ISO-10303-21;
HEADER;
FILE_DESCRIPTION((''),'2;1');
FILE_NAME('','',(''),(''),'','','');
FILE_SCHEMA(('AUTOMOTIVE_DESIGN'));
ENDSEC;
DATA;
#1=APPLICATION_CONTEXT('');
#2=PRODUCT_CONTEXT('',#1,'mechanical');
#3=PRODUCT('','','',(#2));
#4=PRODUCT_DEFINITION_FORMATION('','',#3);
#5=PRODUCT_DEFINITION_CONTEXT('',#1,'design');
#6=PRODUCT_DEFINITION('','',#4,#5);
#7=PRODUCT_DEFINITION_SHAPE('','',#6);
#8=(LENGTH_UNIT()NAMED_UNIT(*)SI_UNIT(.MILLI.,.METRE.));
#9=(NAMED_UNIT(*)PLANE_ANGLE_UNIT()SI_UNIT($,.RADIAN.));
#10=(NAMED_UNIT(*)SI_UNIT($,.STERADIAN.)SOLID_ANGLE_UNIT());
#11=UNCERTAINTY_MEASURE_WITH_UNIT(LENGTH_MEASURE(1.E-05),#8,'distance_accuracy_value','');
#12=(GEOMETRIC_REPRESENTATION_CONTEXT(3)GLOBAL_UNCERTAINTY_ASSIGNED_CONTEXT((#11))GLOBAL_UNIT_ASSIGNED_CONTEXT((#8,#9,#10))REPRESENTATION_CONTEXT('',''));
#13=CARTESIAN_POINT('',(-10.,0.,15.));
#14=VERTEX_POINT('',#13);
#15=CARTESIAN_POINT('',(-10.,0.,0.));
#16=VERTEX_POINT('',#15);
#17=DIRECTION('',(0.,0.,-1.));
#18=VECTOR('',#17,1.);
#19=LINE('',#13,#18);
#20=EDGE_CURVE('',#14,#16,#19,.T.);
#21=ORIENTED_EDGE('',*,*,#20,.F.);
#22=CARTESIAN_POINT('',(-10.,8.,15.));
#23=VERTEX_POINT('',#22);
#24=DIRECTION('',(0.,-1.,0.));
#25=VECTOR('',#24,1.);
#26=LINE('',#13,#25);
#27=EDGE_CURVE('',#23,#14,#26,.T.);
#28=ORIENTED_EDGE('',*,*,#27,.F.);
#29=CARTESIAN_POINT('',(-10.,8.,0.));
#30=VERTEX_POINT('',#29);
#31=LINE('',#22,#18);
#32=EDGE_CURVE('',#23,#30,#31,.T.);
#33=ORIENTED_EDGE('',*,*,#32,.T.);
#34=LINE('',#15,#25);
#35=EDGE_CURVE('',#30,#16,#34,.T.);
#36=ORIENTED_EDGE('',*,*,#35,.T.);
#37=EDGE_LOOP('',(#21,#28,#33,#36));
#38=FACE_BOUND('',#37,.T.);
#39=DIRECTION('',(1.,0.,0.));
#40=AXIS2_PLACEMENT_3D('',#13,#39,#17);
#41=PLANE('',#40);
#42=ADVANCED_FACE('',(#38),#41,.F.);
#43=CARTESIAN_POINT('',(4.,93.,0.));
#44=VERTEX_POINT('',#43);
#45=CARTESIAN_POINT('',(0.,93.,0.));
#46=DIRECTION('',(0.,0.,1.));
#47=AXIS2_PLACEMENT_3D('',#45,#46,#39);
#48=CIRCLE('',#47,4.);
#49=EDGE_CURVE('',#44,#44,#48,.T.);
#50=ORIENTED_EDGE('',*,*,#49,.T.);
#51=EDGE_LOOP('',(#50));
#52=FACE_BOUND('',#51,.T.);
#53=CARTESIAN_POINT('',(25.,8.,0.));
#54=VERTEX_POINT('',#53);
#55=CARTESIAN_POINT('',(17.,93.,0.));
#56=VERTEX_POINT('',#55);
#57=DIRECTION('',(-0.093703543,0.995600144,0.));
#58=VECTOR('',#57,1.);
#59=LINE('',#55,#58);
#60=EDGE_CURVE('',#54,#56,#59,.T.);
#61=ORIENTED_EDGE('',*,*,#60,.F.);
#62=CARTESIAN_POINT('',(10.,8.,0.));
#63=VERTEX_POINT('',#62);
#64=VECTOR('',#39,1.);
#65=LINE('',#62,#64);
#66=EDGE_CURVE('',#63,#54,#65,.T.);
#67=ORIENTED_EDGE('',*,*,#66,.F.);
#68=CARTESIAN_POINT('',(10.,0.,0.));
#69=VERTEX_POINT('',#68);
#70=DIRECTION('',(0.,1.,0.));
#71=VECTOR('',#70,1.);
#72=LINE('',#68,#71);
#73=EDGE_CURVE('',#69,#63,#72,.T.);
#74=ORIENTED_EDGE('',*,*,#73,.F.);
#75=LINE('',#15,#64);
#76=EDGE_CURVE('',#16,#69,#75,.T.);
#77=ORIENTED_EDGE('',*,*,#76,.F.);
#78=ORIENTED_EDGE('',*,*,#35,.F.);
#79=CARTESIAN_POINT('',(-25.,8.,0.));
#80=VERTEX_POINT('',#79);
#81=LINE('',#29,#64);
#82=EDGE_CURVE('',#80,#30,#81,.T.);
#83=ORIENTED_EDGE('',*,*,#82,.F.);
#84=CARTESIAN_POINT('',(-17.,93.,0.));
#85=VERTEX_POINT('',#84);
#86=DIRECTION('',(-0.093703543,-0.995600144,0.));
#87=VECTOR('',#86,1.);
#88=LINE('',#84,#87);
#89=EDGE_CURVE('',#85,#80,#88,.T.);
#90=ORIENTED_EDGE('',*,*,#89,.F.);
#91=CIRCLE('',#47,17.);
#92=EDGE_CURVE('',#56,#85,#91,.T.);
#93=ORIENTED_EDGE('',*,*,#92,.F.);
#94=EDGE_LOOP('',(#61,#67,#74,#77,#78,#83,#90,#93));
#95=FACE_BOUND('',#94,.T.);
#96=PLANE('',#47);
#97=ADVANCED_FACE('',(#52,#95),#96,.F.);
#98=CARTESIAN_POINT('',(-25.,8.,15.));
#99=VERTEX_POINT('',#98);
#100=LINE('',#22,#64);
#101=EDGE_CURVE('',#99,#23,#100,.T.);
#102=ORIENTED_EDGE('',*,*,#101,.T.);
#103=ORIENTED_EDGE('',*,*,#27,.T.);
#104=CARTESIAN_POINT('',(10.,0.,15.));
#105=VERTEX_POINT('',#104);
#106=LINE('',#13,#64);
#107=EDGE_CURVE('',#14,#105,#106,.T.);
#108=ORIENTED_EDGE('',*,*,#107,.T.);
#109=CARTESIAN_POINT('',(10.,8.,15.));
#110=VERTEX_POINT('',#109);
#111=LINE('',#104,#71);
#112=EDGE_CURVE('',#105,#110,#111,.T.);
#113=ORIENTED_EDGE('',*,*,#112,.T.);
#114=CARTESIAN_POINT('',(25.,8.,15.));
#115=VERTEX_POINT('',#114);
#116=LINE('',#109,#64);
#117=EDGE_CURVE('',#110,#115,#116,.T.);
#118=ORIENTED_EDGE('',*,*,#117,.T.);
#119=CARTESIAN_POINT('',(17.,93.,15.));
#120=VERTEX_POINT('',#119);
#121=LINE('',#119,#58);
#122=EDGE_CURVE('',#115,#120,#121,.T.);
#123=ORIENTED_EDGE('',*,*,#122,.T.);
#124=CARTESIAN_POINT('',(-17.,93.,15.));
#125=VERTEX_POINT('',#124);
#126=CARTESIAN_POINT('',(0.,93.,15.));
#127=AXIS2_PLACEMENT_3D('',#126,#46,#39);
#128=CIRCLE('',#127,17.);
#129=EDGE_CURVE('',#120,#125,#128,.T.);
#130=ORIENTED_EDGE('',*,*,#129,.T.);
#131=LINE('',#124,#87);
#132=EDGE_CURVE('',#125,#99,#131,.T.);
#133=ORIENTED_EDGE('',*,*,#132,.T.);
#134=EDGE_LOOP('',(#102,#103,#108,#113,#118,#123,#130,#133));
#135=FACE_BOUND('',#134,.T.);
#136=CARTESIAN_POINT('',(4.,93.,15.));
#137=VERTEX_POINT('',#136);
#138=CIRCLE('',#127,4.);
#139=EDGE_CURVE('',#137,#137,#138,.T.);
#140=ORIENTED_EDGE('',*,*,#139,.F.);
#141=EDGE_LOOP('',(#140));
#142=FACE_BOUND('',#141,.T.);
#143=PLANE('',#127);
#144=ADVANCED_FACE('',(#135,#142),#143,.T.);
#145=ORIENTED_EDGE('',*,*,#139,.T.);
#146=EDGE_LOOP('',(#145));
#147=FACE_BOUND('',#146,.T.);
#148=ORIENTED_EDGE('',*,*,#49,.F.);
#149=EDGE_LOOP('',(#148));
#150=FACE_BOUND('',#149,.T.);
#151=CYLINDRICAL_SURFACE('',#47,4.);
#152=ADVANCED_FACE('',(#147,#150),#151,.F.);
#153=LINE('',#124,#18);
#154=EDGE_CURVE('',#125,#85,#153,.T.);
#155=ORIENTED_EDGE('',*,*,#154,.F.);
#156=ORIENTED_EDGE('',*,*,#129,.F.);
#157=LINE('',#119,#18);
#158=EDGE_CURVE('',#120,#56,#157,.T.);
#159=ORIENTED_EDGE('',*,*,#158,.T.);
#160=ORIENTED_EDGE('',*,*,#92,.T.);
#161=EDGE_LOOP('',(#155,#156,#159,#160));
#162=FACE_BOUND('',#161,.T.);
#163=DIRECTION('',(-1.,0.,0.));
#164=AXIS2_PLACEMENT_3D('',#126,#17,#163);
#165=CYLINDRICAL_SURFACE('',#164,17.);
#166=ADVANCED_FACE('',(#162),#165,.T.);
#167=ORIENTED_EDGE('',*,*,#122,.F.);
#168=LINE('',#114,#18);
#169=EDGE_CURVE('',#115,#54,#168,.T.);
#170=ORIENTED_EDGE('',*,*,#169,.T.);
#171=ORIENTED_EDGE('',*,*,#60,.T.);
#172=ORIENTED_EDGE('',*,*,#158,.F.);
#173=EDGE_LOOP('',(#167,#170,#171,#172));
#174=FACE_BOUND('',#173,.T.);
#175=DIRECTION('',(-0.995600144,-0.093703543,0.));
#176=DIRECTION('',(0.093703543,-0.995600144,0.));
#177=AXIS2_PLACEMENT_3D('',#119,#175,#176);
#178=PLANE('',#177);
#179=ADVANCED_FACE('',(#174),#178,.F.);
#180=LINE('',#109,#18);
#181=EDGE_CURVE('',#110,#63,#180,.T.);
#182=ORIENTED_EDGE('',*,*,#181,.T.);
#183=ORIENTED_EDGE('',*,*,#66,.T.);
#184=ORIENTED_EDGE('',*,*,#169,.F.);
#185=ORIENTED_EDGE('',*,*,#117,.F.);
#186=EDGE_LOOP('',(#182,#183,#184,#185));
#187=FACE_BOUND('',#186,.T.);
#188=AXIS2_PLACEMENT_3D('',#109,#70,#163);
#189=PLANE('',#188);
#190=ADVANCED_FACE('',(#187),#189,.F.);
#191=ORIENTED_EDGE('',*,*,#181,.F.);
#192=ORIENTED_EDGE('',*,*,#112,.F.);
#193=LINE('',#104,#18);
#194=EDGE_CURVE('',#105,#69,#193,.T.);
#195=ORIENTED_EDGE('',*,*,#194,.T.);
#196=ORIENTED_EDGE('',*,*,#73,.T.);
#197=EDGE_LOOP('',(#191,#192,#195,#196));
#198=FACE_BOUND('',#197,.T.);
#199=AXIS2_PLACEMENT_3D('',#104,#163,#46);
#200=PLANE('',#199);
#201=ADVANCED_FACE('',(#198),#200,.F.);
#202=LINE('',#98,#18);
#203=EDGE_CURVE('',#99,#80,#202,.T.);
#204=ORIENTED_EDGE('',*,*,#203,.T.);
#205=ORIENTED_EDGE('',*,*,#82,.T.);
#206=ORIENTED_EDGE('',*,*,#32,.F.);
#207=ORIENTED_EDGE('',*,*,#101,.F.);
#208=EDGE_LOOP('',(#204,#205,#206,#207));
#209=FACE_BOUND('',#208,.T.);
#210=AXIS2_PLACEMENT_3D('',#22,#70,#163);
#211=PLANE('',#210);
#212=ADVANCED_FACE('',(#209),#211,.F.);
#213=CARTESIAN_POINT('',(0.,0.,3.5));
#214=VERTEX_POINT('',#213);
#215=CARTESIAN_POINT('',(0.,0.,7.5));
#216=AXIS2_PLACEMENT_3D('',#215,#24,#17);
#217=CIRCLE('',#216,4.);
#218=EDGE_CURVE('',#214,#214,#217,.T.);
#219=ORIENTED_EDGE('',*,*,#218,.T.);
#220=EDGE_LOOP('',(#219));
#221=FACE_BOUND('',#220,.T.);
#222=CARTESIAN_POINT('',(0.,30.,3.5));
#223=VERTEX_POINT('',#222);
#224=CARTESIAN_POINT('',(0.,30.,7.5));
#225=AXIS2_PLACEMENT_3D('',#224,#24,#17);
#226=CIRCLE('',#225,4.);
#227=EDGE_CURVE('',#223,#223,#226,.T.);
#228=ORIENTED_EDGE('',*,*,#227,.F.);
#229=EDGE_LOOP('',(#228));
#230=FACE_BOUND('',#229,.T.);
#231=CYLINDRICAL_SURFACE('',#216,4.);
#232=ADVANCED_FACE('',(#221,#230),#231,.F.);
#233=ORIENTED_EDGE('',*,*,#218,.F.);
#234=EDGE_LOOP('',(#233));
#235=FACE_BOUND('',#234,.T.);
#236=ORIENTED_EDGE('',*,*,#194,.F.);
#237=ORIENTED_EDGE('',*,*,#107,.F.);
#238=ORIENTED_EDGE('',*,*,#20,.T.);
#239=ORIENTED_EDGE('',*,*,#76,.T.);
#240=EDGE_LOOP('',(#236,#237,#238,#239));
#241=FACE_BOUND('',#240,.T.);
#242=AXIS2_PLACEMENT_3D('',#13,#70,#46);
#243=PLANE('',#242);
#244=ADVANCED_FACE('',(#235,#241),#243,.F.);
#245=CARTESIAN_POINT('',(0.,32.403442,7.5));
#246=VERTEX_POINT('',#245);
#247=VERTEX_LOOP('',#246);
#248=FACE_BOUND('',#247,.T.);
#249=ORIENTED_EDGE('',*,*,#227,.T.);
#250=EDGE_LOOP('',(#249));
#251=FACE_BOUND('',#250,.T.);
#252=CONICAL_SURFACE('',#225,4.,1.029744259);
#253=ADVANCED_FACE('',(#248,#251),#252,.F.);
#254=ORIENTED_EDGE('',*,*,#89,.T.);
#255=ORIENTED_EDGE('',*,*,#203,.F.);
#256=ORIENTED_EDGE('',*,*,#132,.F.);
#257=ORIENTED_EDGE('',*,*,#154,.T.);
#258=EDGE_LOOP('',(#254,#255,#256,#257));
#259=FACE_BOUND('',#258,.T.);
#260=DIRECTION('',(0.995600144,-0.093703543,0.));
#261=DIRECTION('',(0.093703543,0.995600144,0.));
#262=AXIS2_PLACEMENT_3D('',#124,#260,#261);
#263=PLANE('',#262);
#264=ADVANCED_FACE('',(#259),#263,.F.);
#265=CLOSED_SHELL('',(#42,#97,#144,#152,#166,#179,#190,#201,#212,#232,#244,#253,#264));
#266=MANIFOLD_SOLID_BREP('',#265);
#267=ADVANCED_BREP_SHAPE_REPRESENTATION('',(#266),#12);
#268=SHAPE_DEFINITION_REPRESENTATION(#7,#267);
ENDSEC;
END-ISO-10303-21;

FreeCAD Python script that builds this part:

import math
import FreeCAD as App
import Part
import Sketcher

V = App.Vector
Q = App.Units.Quantity

doc = App.newDocument("Part")
body = doc.addObject("PartDesign::Body", "Body")

# Sketch on XY plane
sketch1 = doc.addObject("Sketcher::SketchObject", "Sketch")
body.addObject(sketch1)
sketch1.AttachmentSupport = (doc.XY_Plane, [""])
sketch1.MapMode = "FlatFace"
sketch1.addGeometry([
    Part.LineSegment(V(-10, 0, 0), V(10, 0, 0)),  # 0
    Part.LineSegment(V(10, 0, 0), V(10, 8, 0)),  # 1
    Part.LineSegment(V(10, 8, 0), V(25, 8, 0)),  # 2
    Part.LineSegment(V(25, 8, 0), V(17, 93, 0)),  # 3
    Part.ArcOfCircle(Part.Circle(V(0, 93, 0), V(0, 0, 1), 17), math.radians(0), math.radians(180)),  # 4
    Part.LineSegment(V(-17, 93, 0), V(-25, 8, 0)),  # 5
    Part.LineSegment(V(-25, 8, 0), V(-10, 8, 0)),  # 6
    Part.LineSegment(V(-10, 8, 0), V(-10, 0, 0)),  # 7
    Part.Circle(V(0, 93, 0), V(0, 0, 1), 7),  # 8
], False)
sketch1.addConstraint([
    Sketcher.Constraint("Coincident", 0, 2, 1, 1),
    Sketcher.Constraint("Coincident", 1, 2, 2, 1),
    Sketcher.Constraint("Coincident", 2, 2, 3, 1),
    Sketcher.Constraint("Coincident", 3, 2, 4, 1),
    Sketcher.Constraint("Coincident", 4, 2, 5, 1),
    Sketcher.Constraint("Coincident", 5, 2, 6, 1),
    Sketcher.Constraint("Coincident", 6, 2, 7, 1),
    Sketcher.Constraint("Coincident", 7, 2, 0, 1),
    Sketcher.Constraint("Horizontal", 0),
    Sketcher.Constraint("Vertical", 1),
    Sketcher.Constraint("Horizontal", 2),
    Sketcher.Constraint("Horizontal", 6),
    Sketcher.Constraint("Vertical", 7),
    Sketcher.Constraint("Coincident", 8, 3, 4, 3),
    Sketcher.Constraint("Symmetric", 0, 2, 7, 2, -1, 1),
    Sketcher.Constraint("Symmetric", 3, 2, 4, 2, -2),
    Sketcher.Constraint("Symmetric", 2, 2, 5, 2, -2),
    Sketcher.Constraint("Horizontal", 8, 3, 3, 2),
    Sketcher.Constraint("Diameter", 8, Q("14 mm")),
    Sketcher.Constraint("Radius", 4, Q("17 mm")),
    Sketcher.Constraint("DistanceX", 0, 1, 0, 2, Q("20 mm")),
    Sketcher.Constraint("DistanceX", 2, 1, 2, 2, Q("15 mm")),
    Sketcher.Constraint("DistanceY", 1, 1, 1, 2, Q("8 mm")),
    Sketcher.Constraint("DistanceY", -1, 1, 4, 3, Q("93 mm")),
])
pad1 = doc.addObject("PartDesign::Pad", "Pad")
body.addObject(pad1)
pad1.Profile = sketch1
pad1.Length = 15

# Sketch on XZ plane
sketch2 = doc.addObject("Sketcher::SketchObject", "Sketch001")
body.addObject(sketch2)
sketch2.AttachmentSupport = (doc.XZ_Plane, [""])
sketch2.MapMode = "FlatFace"
sketch2.addGeometry(Part.Circle(V(0, 7.5, 0), V(0, 0, 1), 4), False)
sketch2.addConstraint([
    Sketcher.Constraint("PointOnObject", 0, 3, -2),
    Sketcher.Constraint("Diameter", 0, Q("8 mm")),
    Sketcher.Constraint("DistanceY", -1, 1, 0, 3, Q("7.5 mm")),
])
doc.recompute()
hole = doc.addObject("PartDesign::Hole", "Hole")
body.addObject(hole)
hole.Profile = sketch2
hole.ThreadType = "None"
hole.Diameter = 8
hole.DepthType = "Dimension"
hole.Depth = 30
hole.DrillPoint = "Angled"
hole.DrillPointAngle = 118

# Sketch on XY plane
sketch3 = doc.addObject("Sketcher::SketchObject", "Sketch002")
body.addObject(sketch3)
sketch3.AttachmentSupport = (doc.XY_Plane, [""])
sketch3.MapMode = "FlatFace"
sketch3.AttachmentOffset = App.Placement(V(0, 0, 15), App.Rotation())
sketch3.addGeometry([
    Part.Circle(V(0, 93, 0), V(0, 0, 1), 7),
    Part.Circle(V(0, 93, 0), V(0, 0, 1), 4),
], False)
sketch3.addConstraint([
    Sketcher.Constraint("Coincident", 1, 3, 0, 3),
    Sketcher.Constraint("PointOnObject", 0, 3, -2),
    Sketcher.Constraint("Diameter", 0, Q("14 mm")),
    Sketcher.Constraint("Diameter", 1, Q("8 mm")),
    Sketcher.Constraint("DistanceY", -1, 1, 0, 3, Q("93 mm")),
])
pad2 = doc.addObject("PartDesign::Pad", "Pad001")
body.addObject(pad2)
pad2.Profile = sketch3
pad2.Length = 15
pad2.Reversed = True

doc.recompute()
